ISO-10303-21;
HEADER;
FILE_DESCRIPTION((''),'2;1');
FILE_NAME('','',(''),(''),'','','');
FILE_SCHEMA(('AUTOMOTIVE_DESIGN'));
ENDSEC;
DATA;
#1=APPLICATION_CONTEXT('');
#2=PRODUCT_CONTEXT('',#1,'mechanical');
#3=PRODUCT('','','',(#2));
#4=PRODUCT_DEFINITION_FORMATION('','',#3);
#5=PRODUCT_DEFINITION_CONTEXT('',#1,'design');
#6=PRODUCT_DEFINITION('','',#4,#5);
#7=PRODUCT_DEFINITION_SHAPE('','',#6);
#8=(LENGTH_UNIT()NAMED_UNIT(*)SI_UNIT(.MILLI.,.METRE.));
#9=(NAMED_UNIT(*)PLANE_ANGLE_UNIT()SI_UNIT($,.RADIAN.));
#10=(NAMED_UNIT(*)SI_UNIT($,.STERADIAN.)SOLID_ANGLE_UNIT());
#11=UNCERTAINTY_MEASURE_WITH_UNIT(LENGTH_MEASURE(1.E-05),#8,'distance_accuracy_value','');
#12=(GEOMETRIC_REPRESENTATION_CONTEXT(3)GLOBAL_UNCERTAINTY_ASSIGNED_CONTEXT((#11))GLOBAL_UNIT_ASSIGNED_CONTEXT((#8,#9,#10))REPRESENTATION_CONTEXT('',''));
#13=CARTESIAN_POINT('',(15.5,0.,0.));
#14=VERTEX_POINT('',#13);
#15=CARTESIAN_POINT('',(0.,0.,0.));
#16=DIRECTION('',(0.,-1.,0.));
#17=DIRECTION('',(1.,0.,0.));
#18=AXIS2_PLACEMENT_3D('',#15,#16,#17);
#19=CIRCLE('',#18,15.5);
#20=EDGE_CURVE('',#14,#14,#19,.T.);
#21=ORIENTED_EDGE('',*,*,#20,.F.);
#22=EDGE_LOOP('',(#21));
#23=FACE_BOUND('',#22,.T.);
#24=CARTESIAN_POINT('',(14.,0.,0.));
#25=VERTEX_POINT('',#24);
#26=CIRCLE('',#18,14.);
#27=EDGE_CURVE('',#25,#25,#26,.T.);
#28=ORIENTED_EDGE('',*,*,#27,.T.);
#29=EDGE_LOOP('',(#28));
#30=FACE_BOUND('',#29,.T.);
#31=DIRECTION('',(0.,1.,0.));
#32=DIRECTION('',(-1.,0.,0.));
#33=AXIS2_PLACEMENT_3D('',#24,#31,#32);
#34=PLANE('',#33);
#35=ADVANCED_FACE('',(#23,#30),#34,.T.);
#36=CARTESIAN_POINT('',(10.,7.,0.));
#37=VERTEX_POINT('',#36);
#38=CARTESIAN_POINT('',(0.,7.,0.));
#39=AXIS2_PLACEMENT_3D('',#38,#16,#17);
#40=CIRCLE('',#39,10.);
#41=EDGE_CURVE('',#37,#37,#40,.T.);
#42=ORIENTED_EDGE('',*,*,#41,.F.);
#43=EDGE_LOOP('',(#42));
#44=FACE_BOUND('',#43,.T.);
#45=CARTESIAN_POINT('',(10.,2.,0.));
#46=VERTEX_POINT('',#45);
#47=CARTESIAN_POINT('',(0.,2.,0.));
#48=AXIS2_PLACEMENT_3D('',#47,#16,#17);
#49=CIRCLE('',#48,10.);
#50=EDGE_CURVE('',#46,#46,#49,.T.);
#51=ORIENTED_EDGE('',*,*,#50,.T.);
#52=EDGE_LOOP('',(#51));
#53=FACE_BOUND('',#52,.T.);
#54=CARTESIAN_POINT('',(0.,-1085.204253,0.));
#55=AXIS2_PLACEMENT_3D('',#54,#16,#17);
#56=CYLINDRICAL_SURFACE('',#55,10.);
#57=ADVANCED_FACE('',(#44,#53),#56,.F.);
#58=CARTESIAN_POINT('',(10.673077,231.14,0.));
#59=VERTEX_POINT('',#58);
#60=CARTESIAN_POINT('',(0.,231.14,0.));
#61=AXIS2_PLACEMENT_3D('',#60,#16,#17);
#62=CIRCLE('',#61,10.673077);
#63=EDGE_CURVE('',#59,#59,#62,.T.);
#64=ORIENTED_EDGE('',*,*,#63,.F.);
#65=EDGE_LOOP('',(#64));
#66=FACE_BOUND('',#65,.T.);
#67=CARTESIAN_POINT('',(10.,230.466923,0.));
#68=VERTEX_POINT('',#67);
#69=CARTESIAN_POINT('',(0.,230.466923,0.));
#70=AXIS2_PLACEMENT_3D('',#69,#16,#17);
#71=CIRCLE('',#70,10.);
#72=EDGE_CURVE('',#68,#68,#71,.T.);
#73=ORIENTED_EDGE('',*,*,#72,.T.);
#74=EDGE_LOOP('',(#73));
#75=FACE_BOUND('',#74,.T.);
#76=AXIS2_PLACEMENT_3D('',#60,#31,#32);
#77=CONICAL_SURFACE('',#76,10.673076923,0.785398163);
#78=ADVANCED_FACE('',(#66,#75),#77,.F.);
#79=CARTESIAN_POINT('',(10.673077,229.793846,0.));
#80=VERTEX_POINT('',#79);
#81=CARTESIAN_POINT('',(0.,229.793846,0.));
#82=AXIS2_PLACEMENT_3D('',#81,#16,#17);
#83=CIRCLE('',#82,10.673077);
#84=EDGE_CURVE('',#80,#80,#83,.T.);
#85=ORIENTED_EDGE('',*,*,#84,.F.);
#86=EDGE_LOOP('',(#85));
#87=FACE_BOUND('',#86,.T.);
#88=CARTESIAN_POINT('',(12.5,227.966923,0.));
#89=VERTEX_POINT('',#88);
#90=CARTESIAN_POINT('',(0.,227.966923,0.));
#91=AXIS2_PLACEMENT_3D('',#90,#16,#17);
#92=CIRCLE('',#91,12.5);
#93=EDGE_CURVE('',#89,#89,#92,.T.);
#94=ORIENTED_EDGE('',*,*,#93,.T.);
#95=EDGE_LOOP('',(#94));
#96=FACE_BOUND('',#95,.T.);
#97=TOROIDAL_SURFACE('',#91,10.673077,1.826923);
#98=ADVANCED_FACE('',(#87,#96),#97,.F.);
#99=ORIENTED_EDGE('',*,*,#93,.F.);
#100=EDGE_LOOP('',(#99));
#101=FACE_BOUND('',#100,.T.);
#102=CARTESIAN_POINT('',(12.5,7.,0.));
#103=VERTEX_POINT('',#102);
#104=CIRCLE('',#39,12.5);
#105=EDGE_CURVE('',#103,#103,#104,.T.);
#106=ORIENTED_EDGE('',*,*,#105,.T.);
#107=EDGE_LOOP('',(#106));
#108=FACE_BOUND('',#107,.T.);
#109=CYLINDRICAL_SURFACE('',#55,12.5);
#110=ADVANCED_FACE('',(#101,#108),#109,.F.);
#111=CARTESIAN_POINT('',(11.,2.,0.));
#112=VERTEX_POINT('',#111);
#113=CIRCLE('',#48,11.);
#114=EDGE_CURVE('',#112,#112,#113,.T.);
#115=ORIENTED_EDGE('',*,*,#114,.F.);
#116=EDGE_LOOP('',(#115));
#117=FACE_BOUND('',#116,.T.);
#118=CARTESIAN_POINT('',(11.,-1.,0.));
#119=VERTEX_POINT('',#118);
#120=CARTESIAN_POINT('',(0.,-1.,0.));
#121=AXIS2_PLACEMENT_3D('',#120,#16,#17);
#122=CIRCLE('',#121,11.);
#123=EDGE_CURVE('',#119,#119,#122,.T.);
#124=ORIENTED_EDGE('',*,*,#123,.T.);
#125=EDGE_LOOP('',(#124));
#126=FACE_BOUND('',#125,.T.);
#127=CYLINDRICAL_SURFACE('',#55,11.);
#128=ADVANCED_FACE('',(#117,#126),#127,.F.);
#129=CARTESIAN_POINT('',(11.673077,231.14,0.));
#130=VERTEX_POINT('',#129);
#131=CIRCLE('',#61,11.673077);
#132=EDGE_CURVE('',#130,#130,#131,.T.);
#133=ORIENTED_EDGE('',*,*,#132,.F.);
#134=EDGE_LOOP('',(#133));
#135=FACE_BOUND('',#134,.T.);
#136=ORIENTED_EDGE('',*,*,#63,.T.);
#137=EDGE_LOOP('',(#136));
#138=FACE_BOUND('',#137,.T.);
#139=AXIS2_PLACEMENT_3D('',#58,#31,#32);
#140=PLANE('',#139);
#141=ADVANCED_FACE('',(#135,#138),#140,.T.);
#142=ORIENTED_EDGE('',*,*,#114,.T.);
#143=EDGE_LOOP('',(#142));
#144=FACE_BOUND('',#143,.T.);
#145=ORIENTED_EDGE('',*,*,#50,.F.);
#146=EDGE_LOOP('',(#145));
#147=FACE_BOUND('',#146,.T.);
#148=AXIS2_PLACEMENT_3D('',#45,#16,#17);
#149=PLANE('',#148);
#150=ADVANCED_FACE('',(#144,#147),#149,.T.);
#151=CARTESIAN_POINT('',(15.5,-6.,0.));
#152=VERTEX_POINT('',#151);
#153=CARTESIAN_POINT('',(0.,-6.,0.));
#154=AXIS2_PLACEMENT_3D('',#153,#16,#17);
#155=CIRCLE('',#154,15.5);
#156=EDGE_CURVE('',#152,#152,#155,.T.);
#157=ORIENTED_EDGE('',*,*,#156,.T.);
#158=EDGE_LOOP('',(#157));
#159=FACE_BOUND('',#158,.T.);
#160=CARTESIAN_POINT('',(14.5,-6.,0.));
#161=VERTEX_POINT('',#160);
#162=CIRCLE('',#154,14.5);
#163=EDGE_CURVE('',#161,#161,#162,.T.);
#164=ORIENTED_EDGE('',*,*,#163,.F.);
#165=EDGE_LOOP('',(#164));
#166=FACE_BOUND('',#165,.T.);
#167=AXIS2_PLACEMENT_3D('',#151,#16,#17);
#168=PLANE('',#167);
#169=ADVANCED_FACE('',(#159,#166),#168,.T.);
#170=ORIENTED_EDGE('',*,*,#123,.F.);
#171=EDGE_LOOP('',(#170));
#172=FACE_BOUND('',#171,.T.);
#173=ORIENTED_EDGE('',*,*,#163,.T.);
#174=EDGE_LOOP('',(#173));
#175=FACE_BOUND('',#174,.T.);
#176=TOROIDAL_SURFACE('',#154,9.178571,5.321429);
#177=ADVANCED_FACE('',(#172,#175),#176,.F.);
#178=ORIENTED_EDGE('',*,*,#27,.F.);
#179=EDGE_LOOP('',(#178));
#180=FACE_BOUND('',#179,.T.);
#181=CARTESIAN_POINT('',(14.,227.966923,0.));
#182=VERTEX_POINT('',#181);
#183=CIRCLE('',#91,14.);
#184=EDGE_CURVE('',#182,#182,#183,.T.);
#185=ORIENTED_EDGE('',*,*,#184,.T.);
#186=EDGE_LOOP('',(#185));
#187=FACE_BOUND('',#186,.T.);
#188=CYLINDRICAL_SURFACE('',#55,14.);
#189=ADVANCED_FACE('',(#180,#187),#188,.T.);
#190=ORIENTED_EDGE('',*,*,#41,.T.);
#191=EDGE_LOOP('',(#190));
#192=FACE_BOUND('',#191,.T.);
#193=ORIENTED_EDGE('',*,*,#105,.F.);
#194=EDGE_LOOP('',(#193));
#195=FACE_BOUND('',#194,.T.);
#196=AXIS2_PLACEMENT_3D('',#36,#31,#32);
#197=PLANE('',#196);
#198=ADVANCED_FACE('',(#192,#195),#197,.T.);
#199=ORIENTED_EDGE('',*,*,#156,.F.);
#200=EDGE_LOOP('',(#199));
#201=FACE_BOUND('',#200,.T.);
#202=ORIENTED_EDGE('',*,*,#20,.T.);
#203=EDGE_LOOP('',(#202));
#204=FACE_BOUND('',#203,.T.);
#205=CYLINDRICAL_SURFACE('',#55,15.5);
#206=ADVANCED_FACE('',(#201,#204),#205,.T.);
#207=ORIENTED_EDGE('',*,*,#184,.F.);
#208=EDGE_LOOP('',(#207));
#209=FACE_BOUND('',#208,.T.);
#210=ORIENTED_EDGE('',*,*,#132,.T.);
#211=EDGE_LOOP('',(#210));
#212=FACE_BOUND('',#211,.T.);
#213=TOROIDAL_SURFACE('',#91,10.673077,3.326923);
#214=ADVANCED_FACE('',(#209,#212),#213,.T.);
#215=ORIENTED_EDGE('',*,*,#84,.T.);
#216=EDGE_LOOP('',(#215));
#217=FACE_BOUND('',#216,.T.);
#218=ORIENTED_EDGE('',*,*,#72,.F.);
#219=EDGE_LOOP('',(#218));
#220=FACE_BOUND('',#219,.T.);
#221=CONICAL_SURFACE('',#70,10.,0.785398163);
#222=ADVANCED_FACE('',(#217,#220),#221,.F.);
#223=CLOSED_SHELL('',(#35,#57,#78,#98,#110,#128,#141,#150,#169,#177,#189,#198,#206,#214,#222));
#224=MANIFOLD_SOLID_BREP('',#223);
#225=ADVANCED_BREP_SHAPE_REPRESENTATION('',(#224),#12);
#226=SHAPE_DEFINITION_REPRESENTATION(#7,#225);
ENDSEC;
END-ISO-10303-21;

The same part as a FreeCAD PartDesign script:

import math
import FreeCAD as App
import Part
import Sketcher
from FreeCAD import Vector
Q = App.Units.Quantity

doc = App.newDocument("Part")
body = doc.addObject("PartDesign::Body", "Body")

sketch1 = body.newObject("Sketcher::SketchObject", "Sketch")
sketch1.AttachmentSupport = (doc.getObject("XY_Plane"), [""])
sketch1.MapMode = "FlatFace"
sketch1.addGeometry([
    Part.LineSegment(Vector(12.5, 228, 0), Vector(12.5, 7, 0)),
    Part.LineSegment(Vector(12.5, 7, 0), Vector(10, 7, 0)),
    Part.LineSegment(Vector(10, 7, 0), Vector(10, 2, 0)),
    Part.LineSegment(Vector(10, 2, 0), Vector(11, 2, 0)),
    Part.LineSegment(Vector(11, 2, 0), Vector(11, -1, 0)),
    Part.ArcOfCircle(Part.Circle(Vector(9.2, -6, 0), Vector(0, 0, 1), 5.3), math.radians(0), math.radians(70)),
    Part.LineSegment(Vector(14.5, -6, 0), Vector(15.5, -6, 0)),
    Part.LineSegment(Vector(15.5, -6, 0), Vector(15.5, 0, 0)),
    Part.LineSegment(Vector(15.5, 0, 0), Vector(14, 0, 0)),
    Part.LineSegment(Vector(14, 0, 0), Vector(14, 228, 0)),
    Part.ArcOfCircle(Part.Circle(Vector(10.7, 228, 0), Vector(0, 0, 1), 3.3), math.radians(0), math.radians(73)),
    Part.LineSegment(Vector(11.7, 231.1, 0), Vector(10.7, 231.1, 0)),
    Part.LineSegment(Vector(10.7, 231.1, 0), Vector(10, 230.5, 0)),
    Part.LineSegment(Vector(10, 230.5, 0), Vector(10.7, 229.8, 0)),
    Part.ArcOfCircle(Part.Circle(Vector(10.7, 228, 0), Vector(0, 0, 1), 1.8), math.radians(0), math.radians(90)),
], False)
sketch1.addConstraint([
    Sketcher.Constraint("Coincident", 0, 2, 1, 1),
    Sketcher.Constraint("Coincident", 1, 2, 2, 1),
    Sketcher.Constraint("Coincident", 2, 2, 3, 1),
    Sketcher.Constraint("Coincident", 3, 2, 4, 1),
    Sketcher.Constraint("Coincident", 4, 2, 5, 2),
    Sketcher.Constraint("Coincident", 5, 1, 6, 1),
    Sketcher.Constraint("Coincident", 6, 2, 7, 1),
    Sketcher.Constraint("Coincident", 7, 2, 8, 1),
    Sketcher.Constraint("Coincident", 8, 2, 9, 1),
    Sketcher.Constraint("Tangent", 9, 2, 10, 1),
    Sketcher.Constraint("Coincident", 10, 2, 11, 1),
    Sketcher.Constraint("Coincident", 11, 2, 12, 1),
    Sketcher.Constraint("Coincident", 12, 2, 13, 1),
    Sketcher.Constraint("Coincident", 13, 2, 14, 2),
    Sketcher.Constraint("Tangent", 14, 1, 0, 1),
    Sketcher.Constraint("Vertical", 0),
    Sketcher.Constraint("Horizontal", 1),
    Sketcher.Constraint("Vertical", 2),
    Sketcher.Constraint("Horizontal", 3),
    Sketcher.Constraint("Vertical", 4),
    Sketcher.Constraint("Horizontal", 6),
    Sketcher.Constraint("Vertical", 7),
    Sketcher.Constraint("Horizontal", 8),
    Sketcher.Constraint("Vertical", 9),
    Sketcher.Constraint("Horizontal", 11),
    Sketcher.Constraint("Coincident", 14, 3, 10, 3),
    Sketcher.Constraint("PointOnObject", 7, 2, -1),
    Sketcher.Constraint("Perpendicular", 12, 13),
    Sketcher.Constraint("Vertical", 14, 3, 11, 2),
    Sketcher.Constraint("Vertical", 2, 2, 12, 2),
    Sketcher.Constraint("Vertical", 11, 2, 13, 2),
    Sketcher.Constraint("Equal", 3, 6),
    Sketcher.Constraint("Equal", 6, 11),
    Sketcher.Constraint("Equal", 12, 13),
    Sketcher.Constraint("DistanceX", 3, 1, 3, 2, Q("1 mm")),
    Sketcher.Constraint("DistanceY", 2, 2, 2, 1, Q("5 mm")),
    Sketcher.Constraint("DistanceY", 4, 2, 4, 1, Q("3 mm")),
    Sketcher.Constraint("DistanceY", 7, 1, 7, 2, Q("6 mm")),
    Sketcher.Constraint("DistanceX", 1, 2, 1, 1, Q("2.5 mm")),
    Sketcher.Constraint("DistanceX", 8, 2, 8, 1, Q("1.5 mm")),
    Sketcher.Constraint("DistanceY", 5, 3, -1, 1, Q("6 mm")),
    Sketcher.Constraint("DistanceY", -1, 1, 0, 2, Q("7 mm")),
    Sketcher.Constraint("DistanceX", -1, 1, 1, 2, Q("10 mm")),
    Sketcher.Constraint("DistanceX", -1, 1, 8, 2, Q("14 mm")),
    Sketcher.Constraint("DistanceY", -1, 1, 10, 2, Q("231.14 mm")),
])
revolution = body.newObject("PartDesign::Revolution", "Revolution")
revolution.Profile = sketch1
revolution.ReferenceAxis = (sketch1, ["V_Axis"])
revolution.Angle = 360

doc.recompute()
